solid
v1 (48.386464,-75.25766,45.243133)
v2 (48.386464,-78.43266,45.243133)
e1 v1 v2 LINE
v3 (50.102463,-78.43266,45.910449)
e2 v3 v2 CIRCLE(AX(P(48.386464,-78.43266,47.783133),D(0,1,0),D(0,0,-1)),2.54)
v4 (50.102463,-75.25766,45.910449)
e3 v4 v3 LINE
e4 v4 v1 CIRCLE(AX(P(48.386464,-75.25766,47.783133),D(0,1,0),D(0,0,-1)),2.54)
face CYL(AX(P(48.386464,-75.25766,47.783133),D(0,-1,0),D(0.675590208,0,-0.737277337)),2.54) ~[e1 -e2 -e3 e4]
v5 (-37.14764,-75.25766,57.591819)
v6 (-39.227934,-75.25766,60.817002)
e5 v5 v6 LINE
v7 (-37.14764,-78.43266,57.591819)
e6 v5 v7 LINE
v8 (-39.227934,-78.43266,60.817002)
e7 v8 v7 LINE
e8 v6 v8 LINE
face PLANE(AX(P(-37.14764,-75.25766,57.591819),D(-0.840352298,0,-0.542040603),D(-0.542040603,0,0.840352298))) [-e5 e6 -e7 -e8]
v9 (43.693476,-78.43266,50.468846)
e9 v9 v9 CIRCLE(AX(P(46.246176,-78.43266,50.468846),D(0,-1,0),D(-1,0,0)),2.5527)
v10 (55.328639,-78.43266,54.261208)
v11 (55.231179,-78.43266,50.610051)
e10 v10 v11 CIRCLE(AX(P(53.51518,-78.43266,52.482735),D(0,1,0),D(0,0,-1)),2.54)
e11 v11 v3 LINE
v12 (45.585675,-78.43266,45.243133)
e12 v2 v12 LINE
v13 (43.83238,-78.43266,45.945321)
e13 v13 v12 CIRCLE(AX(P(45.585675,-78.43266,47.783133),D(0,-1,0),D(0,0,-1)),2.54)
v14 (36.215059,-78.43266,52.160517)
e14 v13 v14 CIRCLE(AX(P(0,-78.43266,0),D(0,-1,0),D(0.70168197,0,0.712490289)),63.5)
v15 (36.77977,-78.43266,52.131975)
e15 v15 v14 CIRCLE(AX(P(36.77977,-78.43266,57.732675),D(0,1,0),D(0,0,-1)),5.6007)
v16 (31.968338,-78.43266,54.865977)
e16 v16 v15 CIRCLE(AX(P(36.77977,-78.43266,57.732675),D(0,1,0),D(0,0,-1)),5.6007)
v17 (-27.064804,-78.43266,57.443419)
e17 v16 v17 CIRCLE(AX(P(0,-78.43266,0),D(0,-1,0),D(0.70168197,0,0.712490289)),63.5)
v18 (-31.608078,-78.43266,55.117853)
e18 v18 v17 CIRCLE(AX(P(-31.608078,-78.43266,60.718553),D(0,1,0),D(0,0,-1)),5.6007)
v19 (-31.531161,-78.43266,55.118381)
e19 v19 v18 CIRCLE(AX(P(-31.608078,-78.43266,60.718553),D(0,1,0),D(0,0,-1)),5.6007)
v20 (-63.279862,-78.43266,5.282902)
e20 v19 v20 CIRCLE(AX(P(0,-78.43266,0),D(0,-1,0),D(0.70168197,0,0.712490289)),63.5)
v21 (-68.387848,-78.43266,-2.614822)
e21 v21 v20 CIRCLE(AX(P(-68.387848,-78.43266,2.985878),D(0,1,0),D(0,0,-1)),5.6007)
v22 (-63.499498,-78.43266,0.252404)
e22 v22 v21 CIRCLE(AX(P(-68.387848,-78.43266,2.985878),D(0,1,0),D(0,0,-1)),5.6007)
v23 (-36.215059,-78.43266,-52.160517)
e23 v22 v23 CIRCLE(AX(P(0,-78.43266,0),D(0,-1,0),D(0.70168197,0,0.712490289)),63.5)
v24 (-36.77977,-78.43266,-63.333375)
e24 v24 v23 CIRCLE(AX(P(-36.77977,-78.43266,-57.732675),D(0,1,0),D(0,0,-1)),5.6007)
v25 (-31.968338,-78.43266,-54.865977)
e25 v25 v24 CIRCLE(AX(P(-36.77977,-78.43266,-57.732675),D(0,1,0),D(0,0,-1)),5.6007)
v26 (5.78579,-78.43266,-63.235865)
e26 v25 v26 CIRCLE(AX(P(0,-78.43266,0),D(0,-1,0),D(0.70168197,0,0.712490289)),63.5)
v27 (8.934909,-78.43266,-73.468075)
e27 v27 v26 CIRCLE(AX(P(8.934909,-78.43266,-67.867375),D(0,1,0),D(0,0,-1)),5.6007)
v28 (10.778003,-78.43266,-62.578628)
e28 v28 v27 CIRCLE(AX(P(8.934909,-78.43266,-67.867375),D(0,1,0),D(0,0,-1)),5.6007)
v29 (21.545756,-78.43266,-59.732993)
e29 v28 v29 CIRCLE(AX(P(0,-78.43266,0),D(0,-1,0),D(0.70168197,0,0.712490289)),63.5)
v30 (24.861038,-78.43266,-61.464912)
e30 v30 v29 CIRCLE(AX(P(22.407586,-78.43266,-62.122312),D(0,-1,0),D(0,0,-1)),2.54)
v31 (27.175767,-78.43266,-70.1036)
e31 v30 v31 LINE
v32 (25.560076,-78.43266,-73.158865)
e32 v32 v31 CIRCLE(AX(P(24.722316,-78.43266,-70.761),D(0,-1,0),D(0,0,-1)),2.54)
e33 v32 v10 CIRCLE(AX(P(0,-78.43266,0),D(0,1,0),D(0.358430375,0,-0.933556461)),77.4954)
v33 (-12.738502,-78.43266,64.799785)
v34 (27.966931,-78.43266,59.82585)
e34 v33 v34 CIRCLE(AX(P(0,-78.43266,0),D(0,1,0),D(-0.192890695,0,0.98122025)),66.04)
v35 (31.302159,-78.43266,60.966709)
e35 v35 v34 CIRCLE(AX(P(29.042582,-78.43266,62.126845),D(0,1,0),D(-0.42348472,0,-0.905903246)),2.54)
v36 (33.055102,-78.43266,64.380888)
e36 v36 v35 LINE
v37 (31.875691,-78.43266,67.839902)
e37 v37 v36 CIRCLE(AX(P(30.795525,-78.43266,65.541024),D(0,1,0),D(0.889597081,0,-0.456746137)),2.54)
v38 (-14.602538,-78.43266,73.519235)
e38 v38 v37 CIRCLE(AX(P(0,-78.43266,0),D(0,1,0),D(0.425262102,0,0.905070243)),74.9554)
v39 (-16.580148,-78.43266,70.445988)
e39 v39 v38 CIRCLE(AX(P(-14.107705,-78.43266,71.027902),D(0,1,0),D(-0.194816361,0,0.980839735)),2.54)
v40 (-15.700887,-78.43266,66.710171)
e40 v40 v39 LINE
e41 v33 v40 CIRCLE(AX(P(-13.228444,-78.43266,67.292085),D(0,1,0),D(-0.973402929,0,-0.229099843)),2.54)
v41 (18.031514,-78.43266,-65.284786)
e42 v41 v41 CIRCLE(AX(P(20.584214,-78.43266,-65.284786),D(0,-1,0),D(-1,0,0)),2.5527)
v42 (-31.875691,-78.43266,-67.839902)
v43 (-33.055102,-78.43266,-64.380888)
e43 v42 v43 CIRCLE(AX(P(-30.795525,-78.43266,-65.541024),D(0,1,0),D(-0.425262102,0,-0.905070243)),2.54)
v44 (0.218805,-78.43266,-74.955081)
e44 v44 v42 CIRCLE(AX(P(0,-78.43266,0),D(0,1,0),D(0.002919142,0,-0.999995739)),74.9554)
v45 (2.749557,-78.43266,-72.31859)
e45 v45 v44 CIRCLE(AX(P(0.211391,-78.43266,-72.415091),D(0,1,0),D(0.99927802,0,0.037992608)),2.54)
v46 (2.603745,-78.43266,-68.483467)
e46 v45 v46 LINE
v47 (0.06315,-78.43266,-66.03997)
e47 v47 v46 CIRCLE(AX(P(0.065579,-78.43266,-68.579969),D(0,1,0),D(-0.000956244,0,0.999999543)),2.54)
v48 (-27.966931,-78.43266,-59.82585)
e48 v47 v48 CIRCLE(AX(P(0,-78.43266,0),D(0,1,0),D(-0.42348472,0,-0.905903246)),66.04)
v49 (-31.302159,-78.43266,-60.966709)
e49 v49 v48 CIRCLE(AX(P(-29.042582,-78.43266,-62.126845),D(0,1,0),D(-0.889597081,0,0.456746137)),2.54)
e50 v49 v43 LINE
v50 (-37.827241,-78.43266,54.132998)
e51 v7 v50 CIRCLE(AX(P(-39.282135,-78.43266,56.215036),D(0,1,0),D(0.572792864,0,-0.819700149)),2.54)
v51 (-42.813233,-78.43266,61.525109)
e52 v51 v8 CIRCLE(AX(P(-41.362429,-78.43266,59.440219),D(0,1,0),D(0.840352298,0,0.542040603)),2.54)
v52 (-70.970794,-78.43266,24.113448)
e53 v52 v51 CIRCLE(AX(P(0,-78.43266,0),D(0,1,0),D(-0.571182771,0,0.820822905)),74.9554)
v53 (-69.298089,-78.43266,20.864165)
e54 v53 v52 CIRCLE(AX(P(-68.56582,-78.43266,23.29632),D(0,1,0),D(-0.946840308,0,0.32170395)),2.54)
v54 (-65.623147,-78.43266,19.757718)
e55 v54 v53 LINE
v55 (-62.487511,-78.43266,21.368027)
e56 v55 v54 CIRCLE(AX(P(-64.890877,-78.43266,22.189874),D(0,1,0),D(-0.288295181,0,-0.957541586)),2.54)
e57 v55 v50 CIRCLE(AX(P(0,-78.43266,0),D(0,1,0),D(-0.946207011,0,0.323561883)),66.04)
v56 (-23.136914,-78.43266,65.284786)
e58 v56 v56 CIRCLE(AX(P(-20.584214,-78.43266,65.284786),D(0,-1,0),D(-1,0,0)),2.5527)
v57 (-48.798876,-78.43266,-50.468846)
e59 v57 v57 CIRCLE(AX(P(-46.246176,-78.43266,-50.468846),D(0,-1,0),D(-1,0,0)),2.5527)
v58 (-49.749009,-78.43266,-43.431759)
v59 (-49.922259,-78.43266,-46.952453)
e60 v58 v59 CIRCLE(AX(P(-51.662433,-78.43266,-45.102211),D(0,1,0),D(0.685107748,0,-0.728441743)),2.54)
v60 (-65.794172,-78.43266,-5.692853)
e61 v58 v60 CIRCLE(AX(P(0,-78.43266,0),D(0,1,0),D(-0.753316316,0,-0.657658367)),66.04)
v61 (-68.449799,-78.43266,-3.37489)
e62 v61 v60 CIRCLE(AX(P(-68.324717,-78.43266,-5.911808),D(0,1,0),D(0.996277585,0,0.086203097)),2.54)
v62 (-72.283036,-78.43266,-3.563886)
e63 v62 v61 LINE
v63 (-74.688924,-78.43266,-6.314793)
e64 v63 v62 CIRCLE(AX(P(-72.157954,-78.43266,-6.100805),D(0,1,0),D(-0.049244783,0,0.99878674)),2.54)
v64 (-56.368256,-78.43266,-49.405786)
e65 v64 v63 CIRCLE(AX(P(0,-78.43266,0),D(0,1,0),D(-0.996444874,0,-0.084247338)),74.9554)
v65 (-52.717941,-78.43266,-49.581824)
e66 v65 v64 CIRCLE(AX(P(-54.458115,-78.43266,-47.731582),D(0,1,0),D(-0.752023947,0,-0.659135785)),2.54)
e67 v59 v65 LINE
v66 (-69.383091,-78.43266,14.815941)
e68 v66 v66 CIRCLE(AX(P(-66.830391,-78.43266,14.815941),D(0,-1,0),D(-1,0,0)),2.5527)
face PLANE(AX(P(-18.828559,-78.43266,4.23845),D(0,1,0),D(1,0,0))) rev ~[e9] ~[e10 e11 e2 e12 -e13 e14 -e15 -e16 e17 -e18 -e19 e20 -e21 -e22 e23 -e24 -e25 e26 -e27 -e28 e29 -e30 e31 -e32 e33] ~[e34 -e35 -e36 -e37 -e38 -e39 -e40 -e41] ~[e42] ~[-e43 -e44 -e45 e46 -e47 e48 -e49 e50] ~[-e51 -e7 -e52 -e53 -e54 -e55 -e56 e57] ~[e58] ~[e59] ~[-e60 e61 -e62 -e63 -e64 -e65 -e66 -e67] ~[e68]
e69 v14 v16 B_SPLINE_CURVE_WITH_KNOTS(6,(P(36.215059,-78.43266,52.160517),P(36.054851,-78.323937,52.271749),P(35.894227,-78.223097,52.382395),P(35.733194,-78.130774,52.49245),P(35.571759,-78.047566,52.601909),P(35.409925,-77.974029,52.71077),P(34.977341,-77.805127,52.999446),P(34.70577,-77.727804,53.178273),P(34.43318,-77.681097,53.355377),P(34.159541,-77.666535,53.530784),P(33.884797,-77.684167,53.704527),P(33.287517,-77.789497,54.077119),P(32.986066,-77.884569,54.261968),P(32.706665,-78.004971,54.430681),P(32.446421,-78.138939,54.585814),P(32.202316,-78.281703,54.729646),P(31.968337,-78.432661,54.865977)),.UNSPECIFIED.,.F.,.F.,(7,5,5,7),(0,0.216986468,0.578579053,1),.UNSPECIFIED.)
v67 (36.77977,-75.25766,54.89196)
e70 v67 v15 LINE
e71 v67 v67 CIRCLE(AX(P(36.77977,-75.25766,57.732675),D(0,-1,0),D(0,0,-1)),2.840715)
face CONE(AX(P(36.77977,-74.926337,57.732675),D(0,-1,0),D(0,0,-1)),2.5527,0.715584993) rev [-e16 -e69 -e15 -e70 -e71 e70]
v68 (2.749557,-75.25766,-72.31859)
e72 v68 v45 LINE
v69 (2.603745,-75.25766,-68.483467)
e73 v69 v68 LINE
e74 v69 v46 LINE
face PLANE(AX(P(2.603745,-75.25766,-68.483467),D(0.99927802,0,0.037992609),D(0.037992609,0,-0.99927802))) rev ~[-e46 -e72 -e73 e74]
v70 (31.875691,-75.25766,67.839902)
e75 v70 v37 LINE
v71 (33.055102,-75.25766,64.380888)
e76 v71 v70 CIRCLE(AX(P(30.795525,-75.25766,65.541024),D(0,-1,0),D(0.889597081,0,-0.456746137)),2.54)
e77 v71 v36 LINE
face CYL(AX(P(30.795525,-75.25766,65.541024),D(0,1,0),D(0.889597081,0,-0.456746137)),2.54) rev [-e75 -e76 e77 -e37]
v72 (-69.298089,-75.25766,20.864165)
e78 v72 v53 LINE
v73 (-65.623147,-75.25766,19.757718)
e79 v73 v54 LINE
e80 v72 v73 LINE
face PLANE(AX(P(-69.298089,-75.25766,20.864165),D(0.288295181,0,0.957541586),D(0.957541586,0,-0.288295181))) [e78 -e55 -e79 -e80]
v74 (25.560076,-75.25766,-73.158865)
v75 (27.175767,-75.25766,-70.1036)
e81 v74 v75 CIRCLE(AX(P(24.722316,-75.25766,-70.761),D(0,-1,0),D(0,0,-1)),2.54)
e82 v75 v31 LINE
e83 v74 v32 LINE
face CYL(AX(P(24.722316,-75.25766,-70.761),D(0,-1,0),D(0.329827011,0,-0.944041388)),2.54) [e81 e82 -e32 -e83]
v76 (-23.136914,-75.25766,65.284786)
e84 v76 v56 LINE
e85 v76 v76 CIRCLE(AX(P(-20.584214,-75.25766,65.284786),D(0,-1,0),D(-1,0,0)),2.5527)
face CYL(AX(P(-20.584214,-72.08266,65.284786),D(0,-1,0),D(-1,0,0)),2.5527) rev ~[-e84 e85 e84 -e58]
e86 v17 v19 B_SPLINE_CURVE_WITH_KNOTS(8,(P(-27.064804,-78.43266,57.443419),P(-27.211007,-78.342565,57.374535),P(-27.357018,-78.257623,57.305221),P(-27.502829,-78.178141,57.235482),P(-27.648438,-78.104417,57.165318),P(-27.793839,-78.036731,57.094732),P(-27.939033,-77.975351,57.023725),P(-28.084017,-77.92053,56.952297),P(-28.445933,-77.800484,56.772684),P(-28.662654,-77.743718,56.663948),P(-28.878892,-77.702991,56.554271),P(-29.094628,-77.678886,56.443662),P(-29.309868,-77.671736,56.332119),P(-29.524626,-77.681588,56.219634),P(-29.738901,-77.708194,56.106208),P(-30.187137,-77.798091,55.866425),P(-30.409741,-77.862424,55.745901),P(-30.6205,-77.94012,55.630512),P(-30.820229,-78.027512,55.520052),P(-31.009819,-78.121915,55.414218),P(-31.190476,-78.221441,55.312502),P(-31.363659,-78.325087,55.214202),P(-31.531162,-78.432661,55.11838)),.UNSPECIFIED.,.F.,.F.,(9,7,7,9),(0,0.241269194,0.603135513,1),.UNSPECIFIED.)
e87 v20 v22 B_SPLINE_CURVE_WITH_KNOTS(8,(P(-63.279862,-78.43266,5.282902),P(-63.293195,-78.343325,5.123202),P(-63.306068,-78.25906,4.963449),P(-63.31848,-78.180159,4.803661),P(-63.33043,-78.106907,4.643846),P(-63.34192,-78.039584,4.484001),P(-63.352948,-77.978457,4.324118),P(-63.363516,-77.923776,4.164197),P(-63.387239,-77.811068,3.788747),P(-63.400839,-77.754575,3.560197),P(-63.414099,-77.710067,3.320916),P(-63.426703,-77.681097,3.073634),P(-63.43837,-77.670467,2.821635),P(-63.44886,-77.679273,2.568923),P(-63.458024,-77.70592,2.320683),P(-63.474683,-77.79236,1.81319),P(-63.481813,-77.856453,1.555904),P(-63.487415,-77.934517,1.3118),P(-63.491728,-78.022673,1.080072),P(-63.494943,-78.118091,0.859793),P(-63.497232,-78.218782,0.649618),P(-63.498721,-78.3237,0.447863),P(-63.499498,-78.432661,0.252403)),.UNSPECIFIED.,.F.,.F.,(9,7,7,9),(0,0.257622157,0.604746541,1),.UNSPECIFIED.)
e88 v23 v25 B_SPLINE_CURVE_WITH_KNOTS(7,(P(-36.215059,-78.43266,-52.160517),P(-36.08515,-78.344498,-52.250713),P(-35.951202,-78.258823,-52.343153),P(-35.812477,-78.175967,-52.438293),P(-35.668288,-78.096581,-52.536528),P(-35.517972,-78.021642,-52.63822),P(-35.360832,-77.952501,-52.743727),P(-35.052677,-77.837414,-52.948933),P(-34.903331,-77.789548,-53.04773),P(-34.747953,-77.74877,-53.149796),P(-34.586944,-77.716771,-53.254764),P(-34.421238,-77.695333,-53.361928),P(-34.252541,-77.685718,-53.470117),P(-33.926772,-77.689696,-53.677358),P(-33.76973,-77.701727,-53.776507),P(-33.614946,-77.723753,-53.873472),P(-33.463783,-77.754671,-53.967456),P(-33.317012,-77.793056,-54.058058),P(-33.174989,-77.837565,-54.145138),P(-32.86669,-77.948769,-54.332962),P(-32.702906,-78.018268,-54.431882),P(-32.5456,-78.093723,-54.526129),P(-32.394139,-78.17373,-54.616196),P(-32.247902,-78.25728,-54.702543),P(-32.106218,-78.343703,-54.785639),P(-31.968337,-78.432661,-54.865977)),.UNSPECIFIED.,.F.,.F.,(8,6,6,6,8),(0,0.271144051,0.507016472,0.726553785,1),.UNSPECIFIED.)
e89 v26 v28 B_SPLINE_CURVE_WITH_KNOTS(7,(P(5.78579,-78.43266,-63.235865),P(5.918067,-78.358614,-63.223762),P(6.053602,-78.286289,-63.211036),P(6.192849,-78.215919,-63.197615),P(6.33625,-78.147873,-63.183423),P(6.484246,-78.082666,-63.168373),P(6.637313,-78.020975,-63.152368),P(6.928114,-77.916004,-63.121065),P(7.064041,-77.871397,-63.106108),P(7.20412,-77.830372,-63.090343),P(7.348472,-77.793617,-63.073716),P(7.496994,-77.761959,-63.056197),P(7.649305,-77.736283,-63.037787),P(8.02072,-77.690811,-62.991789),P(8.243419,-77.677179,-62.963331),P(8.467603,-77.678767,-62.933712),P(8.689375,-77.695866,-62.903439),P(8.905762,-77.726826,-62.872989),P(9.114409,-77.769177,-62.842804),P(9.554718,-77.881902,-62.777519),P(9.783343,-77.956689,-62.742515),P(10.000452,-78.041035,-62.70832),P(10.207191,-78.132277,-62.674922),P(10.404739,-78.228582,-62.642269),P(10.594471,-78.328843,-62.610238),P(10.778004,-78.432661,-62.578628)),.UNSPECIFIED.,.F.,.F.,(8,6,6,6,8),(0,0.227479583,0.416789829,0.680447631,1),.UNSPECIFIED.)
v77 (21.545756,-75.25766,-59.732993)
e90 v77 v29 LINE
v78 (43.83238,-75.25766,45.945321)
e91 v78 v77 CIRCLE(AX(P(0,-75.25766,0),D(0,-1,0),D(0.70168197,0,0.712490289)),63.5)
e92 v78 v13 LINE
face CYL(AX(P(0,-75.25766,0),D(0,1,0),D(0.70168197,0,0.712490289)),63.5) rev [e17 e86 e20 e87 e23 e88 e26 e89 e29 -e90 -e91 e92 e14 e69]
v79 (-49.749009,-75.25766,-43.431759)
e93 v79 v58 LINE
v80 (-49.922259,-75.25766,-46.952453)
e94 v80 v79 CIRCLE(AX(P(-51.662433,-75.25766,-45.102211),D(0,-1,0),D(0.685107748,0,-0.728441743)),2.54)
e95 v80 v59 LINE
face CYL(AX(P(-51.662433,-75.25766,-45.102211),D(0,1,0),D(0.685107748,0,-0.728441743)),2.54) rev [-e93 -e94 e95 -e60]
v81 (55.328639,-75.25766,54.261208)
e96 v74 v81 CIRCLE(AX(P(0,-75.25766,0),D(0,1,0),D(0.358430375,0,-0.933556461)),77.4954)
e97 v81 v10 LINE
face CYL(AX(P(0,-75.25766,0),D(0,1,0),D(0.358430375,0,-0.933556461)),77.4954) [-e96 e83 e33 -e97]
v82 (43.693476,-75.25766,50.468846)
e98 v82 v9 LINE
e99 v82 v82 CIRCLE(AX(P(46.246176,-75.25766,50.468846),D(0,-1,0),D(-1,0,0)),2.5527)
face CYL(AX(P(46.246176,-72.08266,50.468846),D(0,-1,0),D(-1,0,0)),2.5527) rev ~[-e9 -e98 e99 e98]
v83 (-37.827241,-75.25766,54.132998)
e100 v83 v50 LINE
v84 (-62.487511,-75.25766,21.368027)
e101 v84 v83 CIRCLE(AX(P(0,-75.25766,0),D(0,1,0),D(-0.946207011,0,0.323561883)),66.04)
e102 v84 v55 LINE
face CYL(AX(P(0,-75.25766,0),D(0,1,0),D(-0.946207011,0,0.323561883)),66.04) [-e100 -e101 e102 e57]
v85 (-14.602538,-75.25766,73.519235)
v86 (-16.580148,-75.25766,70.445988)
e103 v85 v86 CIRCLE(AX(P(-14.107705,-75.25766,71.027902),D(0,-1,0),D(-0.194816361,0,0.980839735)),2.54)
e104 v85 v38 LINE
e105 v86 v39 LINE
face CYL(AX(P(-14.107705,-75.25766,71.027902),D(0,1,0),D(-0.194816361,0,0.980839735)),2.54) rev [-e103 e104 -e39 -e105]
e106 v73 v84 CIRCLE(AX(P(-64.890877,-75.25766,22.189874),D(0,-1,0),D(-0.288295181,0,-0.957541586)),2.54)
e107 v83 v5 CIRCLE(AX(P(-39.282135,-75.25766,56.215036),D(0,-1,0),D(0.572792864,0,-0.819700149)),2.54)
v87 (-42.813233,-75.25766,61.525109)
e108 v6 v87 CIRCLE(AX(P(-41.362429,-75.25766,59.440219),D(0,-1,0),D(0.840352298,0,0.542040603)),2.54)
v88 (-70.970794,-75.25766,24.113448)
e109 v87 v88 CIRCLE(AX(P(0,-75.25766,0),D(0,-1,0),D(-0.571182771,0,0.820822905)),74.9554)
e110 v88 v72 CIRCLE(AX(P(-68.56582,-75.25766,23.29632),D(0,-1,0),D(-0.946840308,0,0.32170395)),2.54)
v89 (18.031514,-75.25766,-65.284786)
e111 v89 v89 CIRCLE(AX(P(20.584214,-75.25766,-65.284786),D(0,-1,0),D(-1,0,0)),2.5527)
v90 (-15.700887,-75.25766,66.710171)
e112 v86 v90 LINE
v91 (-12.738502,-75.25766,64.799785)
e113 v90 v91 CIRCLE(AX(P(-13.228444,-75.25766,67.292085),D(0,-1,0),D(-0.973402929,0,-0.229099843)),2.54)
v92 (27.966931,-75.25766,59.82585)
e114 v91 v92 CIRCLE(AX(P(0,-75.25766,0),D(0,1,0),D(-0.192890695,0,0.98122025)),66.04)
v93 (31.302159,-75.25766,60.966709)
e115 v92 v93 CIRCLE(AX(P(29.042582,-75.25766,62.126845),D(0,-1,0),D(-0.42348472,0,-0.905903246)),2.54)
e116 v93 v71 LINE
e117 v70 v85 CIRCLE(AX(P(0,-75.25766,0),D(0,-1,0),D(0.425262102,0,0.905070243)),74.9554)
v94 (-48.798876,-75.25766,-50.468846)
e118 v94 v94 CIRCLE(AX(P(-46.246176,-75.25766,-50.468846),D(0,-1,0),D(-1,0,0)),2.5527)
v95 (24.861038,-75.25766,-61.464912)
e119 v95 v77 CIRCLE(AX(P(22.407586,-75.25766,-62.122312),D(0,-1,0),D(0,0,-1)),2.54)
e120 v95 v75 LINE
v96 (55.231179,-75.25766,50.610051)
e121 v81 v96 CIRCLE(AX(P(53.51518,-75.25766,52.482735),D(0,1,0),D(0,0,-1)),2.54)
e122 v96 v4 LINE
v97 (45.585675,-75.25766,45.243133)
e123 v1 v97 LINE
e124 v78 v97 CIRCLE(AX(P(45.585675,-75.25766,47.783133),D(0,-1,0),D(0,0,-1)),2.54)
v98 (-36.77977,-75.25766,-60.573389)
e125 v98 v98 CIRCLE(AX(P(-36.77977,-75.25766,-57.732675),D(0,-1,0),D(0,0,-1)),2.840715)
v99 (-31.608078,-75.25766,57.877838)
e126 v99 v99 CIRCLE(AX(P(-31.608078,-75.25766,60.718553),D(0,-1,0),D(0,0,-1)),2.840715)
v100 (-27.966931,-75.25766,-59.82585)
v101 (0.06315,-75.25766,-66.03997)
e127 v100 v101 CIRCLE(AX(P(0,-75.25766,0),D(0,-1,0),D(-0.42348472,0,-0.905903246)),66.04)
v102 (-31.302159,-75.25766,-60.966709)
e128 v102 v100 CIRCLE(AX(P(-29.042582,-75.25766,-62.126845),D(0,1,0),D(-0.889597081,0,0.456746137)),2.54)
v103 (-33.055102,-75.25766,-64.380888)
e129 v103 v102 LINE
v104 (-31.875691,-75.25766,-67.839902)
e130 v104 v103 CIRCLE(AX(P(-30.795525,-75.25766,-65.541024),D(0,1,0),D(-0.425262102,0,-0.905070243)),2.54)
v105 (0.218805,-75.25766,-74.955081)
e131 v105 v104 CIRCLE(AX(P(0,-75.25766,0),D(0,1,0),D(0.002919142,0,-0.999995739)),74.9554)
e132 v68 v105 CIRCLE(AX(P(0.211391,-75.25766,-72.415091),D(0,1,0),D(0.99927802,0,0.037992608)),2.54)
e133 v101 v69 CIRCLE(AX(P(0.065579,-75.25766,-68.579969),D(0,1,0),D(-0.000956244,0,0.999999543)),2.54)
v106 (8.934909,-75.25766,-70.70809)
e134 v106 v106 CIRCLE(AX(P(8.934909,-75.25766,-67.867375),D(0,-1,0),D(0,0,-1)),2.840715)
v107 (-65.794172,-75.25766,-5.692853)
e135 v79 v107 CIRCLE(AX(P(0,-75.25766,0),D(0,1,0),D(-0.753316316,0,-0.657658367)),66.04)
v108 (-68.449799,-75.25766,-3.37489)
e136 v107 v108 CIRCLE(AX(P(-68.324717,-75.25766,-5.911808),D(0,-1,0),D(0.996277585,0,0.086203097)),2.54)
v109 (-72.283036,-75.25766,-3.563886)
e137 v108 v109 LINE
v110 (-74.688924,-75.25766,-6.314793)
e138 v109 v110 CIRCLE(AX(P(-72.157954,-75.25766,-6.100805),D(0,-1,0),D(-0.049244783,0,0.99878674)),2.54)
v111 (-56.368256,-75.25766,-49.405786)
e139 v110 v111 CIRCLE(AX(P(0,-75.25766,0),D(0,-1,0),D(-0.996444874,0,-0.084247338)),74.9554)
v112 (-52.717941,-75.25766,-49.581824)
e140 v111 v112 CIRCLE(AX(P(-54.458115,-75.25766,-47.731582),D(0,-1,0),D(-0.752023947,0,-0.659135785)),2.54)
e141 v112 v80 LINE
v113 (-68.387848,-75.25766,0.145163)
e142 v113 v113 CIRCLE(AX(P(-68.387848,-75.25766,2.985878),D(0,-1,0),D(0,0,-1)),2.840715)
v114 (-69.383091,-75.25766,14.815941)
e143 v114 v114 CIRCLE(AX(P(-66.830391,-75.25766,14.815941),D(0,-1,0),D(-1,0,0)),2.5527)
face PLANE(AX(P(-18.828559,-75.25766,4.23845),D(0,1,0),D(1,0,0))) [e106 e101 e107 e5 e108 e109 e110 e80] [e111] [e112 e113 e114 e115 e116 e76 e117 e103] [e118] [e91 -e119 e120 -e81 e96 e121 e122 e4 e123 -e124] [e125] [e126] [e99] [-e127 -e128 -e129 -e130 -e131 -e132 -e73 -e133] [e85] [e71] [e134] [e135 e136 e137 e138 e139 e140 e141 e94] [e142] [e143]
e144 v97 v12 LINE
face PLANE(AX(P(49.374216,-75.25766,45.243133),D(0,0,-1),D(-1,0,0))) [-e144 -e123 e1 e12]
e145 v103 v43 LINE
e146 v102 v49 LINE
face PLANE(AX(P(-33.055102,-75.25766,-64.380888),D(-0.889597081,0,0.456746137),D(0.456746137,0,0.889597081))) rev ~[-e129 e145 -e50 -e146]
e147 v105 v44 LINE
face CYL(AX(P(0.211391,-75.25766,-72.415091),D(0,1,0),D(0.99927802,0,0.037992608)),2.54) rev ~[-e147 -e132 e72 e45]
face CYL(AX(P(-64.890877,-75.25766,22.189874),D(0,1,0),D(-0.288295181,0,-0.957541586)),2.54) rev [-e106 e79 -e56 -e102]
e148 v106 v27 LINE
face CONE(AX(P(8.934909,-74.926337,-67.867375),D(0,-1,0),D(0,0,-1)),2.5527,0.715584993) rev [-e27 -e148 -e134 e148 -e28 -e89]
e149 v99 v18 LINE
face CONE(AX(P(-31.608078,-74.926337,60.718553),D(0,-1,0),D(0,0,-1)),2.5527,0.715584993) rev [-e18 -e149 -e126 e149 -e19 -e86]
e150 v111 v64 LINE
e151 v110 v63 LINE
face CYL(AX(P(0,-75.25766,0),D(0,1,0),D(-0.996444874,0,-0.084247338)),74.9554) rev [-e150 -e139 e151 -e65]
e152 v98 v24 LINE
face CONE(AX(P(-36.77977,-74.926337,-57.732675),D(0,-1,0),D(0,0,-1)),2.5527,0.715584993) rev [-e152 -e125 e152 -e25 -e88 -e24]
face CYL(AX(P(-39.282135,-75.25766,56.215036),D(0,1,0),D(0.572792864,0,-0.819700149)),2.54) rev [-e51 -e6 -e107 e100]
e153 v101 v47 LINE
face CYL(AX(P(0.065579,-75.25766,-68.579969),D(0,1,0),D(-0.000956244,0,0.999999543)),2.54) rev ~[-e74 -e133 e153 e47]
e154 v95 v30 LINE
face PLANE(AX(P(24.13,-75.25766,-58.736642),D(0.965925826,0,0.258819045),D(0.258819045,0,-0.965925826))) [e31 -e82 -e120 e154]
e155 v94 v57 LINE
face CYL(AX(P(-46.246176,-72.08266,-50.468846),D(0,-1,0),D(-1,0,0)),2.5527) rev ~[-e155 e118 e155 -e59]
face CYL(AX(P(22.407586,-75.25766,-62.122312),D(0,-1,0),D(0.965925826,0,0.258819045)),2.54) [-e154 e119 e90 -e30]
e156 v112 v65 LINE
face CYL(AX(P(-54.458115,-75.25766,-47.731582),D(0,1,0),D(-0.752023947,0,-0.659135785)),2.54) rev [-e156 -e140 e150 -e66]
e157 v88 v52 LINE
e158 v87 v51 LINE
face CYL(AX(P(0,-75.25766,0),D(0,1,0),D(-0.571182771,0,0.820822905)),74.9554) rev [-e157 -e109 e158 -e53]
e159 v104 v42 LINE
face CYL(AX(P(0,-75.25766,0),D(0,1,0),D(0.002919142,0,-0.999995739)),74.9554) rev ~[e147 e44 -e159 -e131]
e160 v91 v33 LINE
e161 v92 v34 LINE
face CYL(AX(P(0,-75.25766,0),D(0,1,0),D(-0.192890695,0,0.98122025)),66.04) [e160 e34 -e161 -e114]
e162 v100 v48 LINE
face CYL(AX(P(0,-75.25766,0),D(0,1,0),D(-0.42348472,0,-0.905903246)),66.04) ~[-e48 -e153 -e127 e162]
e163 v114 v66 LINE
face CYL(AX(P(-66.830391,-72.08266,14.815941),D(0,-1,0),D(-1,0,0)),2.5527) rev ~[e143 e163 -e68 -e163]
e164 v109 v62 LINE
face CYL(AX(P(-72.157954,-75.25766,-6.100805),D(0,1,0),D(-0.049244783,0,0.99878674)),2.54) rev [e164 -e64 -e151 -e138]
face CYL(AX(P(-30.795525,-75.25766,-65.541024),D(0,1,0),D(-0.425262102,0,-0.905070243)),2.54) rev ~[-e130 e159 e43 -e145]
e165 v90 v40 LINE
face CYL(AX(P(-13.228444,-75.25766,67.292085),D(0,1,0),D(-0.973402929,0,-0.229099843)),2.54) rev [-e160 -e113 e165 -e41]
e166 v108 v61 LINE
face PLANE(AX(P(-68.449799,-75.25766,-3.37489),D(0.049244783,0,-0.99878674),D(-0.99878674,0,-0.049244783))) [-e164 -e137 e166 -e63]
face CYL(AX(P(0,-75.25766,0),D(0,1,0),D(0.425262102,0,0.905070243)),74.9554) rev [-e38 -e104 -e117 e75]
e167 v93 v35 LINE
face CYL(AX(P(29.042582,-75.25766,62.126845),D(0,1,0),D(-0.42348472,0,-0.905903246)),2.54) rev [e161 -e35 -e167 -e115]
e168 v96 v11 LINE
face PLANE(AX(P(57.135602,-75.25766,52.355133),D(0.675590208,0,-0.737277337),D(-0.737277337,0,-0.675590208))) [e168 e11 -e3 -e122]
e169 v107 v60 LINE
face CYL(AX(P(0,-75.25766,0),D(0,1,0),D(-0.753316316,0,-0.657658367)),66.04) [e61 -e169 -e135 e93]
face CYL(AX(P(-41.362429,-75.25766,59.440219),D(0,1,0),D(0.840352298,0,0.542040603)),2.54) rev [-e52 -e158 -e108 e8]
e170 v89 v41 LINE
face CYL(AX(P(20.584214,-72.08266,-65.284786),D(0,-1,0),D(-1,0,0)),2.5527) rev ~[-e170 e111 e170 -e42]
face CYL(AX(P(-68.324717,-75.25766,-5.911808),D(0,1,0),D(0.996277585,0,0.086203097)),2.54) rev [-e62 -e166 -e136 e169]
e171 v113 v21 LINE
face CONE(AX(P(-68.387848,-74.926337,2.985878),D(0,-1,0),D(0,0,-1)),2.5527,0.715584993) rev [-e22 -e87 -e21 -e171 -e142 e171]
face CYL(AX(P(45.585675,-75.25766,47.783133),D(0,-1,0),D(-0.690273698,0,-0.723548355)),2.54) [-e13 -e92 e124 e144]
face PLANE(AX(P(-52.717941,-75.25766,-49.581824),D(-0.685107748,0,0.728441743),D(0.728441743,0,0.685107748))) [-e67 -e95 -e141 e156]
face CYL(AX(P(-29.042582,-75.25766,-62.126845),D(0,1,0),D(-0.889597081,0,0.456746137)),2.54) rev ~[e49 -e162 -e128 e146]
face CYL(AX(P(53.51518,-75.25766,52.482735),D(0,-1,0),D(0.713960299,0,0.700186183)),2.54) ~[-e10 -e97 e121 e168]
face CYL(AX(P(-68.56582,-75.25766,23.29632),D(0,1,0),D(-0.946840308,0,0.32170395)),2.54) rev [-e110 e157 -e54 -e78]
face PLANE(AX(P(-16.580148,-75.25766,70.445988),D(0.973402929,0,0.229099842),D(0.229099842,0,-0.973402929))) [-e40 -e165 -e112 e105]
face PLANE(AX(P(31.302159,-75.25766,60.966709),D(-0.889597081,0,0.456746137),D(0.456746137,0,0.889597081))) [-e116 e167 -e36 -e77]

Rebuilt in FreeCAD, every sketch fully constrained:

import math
import FreeCAD as App
import Part
import Sketcher
from FreeCAD import Vector
Q = App.Units.Quantity


def edges_at(feature, points):
    """Names of the edges that pass closest to the given points."""
    edges = feature.Shape.Edges
    near = lambda p: min(range(len(edges)), key=lambda i: edges[i].distToShape(Part.Vertex(*p))[0])
    return sorted({f"Edge{near(p) + 1}" for p in points})

doc = App.newDocument("Part")
params = doc.addObject("Spreadsheet::Sheet", "Params")
for row, (alias, value) in enumerate([
    ("sketch1_radius", "2.5 in"),
    ("sketch1_radius2", "3.051 in"),
    ("pad1_length", "0.125 in"),
    ("sketch2_diameter", "0.201 in"),
    ("hole_diameter", "0.201 in"),
    ("hole_depth", "0.125 in"),
    ("sketch3_width", "0.125 in"),
    ("groove_angle", "360 deg"),
    ("linearpattern_pitch", "46.82461 mm"),
    ("linearpattern2_pitch", "104.876081 mm"),
    ("linearpattern3_pitch", "134.82609 mm"),
    ("linearpattern4_pitch", "128.649558 mm"),
    ("fillet_radius", "0.1 in"),
    ("sketch4_radius", "0.1 in"),
    ("sketch4_radius2", "2.6 in"),
    ("sketch4_radius3", "2.951 in"),
    ("sketch5_radius", "0.1 in"),
    ("sketch5_radius2", "2.6 in"),
    ("sketch5_radius3", "2.951 in"),
    ("sketch6_radius", "0.1 in"),
    ("sketch6_radius2", "2.6 in"),
    ("sketch6_radius3", "2.951 in"),
    ("sketch7_radius", "0.1 in"),
    ("sketch7_radius2", "2.6 in"),
    ("sketch7_radius3", "2.951 in"),
], start=1):
    params.set(f"A{row}", alias)
    params.set(f"B{row}", "=" + value)
    params.setAlias(f"B{row}", alias)

body = doc.addObject("PartDesign::Body", "Body")

# Sketch on XZ plane
sketch1 = body.newObject("Sketcher::SketchObject", "Sketch")
sketch1.AttachmentSupport = (doc.getObject("XZ_Plane"), [""])
sketch1.MapMode = "FlatFace"
sketch1.AttachmentOffset = App.Placement(Vector(0, 0, 2.9629 * 25.4), App.Rotation())
sketch1.addGeometry(Part.ArcOfCircle(Part.Circle(Vector(0, 0, 0), Vector(0, 0, 1), 77.4954), math.radians(42.5), math.radians(291.003831)), False)
sketch1.addGeometry(Part.LineSegment(Vector(57.135602, 52.355133, 0), Vector(49.374216, 45.243133, 0)), False)
sketch1.addGeometry(Part.LineSegment(Vector(49.374216, 45.243133, 0), Vector(44.556805, 45.243133, 0)), False)
sketch1.addGeometry(Part.ArcOfCircle(Part.Circle(Vector(0, 0, 0), Vector(0, 0, 1), 63.5), math.radians(45.437895), math.radians(292.333683)), False)
sketch1.addGeometry(Part.LineSegment(Vector(24.13, -58.736642, 0), Vector(27.776705, -72.346331, 0)), False)
sketch1.addConstraint(Sketcher.Constraint("Coincident", 0, 1, 1, 1))
sketch1.addConstraint(Sketcher.Constraint("Coincident", 1, 2, 2, 1))
sketch1.addConstraint(Sketcher.Constraint("Coincident", 2, 2, 3, 1))
sketch1.addConstraint(Sketcher.Constraint("Coincident", 3, 2, 4, 1))
sketch1.addConstraint(Sketcher.Constraint("Coincident", 4, 2, 0, 2))
sketch1.addConstraint(Sketcher.Constraint("Horizontal", 2))
sketch1.addConstraint(Sketcher.Constraint("Coincident", 0, 3, -1, 1))
sketch1.addConstraint(Sketcher.Constraint("Coincident", 3, 3, -1, 1))
sketch1.addConstraint(Sketcher.Constraint("Radius", 3, Q("2.5 in")))
sketch1.addConstraint(Sketcher.Constraint("Angle", 4, Q("-75 deg")))
sketch1.addConstraint(Sketcher.Constraint("Radius", 0, Q("3.051 in")))
sketch1.addConstraint(Sketcher.Constraint("Angle", 1, Q("-137.5 deg")))
sketch1.addConstraint(Sketcher.Constraint("DistanceX", -1, 1, 3, 2, Q("0.95 in")))
sketch1.addConstraint(Sketcher.Constraint("DistanceY", 1, 2, 0, 1, Q("0.28 in")))
sketch1.addConstraint(Sketcher.Constraint("DistanceX", 2, 2, 2, 1, Q("4.817411 mm")))
sketch1.setExpression("Constraints[8]", "Params.sketch1_radius")
sketch1.setExpression("Constraints[10]", "Params.sketch1_radius2")
pad1 = body.newObject("PartDesign::Pad", "Pad")
pad1.Profile = sketch1
pad1.setExpression("Length", "Params.pad1_length")

# Sketch on XZ plane
sketch2 = body.newObject("Sketcher::SketchObject", "Sketch001")
sketch2.AttachmentSupport = (doc.getObject("XZ_Plane"), [""])
sketch2.MapMode = "FlatFace"
sketch2.AttachmentOffset = App.Placement(Vector(0, 0, 2.9629 * 25.4), App.Rotation())
sketch2.addGeometry(Part.Circle(Vector(-46.246176, -50.468846, 0), Vector(0, 0, 1), 2.5527), False)
sketch2.addGeometry(Part.Circle(Vector(20.584214, -65.284786, 0), Vector(0, 0, 1), 2.5527), False)
sketch2.addGeometry(Part.Circle(Vector(-66.830391, 14.815941, 0), Vector(0, 0, 1), 2.5527), False)
sketch2.addGeometry(Part.Circle(Vector(-20.584214, 65.284786, 0), Vector(0, 0, 1), 2.5527), False)
sketch2.addGeometry(Part.Circle(Vector(46.246176, 50.468846, 0), Vector(0, 0, 1), 2.5527), False)
sketch2.addConstraint(Sketcher.Constraint("Equal", 0, 1))
sketch2.addConstraint(Sketcher.Constraint("Equal", 1, 2))
sketch2.addConstraint(Sketcher.Constraint("Equal", 2, 3))
sketch2.addConstraint(Sketcher.Constraint("Equal", 3, 4))
sketch2.addConstraint(Sketcher.Constraint("Symmetric", 1, 3, 3, 3, -1, 1))
sketch2.addConstraint(Sketcher.Constraint("Symmetric", 0, 3, 4, 3, -1, 1))
sketch2.addConstraint(Sketcher.Constraint("Diameter", 0, Q("0.201 in")))
sketch2.addConstraint(Sketcher.Constraint("DistanceX", 2, 3, -1, 1, Q("66.830391 mm")))
sketch2.addConstraint(Sketcher.Constraint("DistanceY", -1, 1, 2, 3, Q("14.815941 mm")))
sketch2.addConstraint(Sketcher.Constraint("DistanceX", 0, 3, 1, 3, Q("66.830391 mm")))
sketch2.addConstraint(Sketcher.Constraint("DistanceY", 1, 3, 0, 3, Q("14.815941 mm")))
sketch2.addConstraint(Sketcher.Constraint("DistanceY", 0, 3, 3, 3, Q("115.753632 mm")))
sketch2.addConstraint(Sketcher.Constraint("DistanceX", 3, 3, 1, 3, Q("41.168428 mm")))
sketch2.setExpression("Constraints[6]", "Params.sketch2_diameter")
doc.recompute()
hole = body.newObject("PartDesign::Hole", "Hole")
hole.Profile = sketch2
hole.ThreadType = "None"
hole.setExpression("Diameter", "Params.hole_diameter")
hole.DepthType = "Dimension"
hole.setExpression("Depth", "Params.hole_depth")
hole.DrillPoint = "Flat"
hole.Reversed = True

# Sketch on YZ plane
sketch3 = body.newObject("Sketcher::SketchObject", "Sketch002")
sketch3.AttachmentSupport = (doc.getObject("YZ_Plane"), [""])
sketch3.MapMode = "FlatFace"
sketch3.AttachmentOffset = App.Placement(Vector(0, 0, 8.934909), App.Rotation())
sketch3.addGeometry(Part.LineSegment(Vector(-75.25766, -67.867375, 0), Vector(-78.43266, -67.867375, 0)), False)
sketch3.addGeometry(Part.LineSegment(Vector(-78.43266, -67.867375, 0), Vector(-78.43266, -73.468075, 0)), False)
sketch3.addGeometry(Part.LineSegment(Vector(-78.43266, -73.468075, 0), Vector(-74.926337, -70.420075, 0)), False)
sketch3.addGeometry(Part.LineSegment(Vector(-74.926337, -70.420075, 0), Vector(-75.25766, -70.420075, 0)), False)
sketch3.addGeometry(Part.LineSegment(Vector(-75.25766, -70.420075, 0), Vector(-75.25766, -67.867375, 0)), False)
sketch3.addGeometry(Part.LineSegment(Vector(-78.43266, -67.867375, 0), Vector(-74.926337, -67.867375, 0)), True)  # axis
sketch3.addConstraint(Sketcher.Constraint("Coincident", 0, 2, 1, 1))
sketch3.addConstraint(Sketcher.Constraint("Coincident", 1, 2, 2, 1))
sketch3.addConstraint(Sketcher.Constraint("Coincident", 2, 2, 3, 1))
sketch3.addConstraint(Sketcher.Constraint("Coincident", 3, 2, 4, 1))
sketch3.addConstraint(Sketcher.Constraint("Coincident", 4, 2, 0, 1))
sketch3.addConstraint(Sketcher.Constraint("Horizontal", 0))
sketch3.addConstraint(Sketcher.Constraint("Vertical", 1))
sketch3.addConstraint(Sketcher.Constraint("Horizontal", 3))
sketch3.addConstraint(Sketcher.Constraint("Vertical", 4))
sketch3.addConstraint(Sketcher.Constraint("Horizontal", 5))
sketch3.addConstraint(Sketcher.Constraint("Coincident", 5, 1, 0, 2))
sketch3.addConstraint(Sketcher.Constraint("Vertical", 2, 2, 5, 2))
sketch3.addConstraint(Sketcher.Constraint("Angle", 2, Q("41 deg")))
sketch3.addConstraint(Sketcher.Constraint("DistanceX", 0, 2, 0, 1, Q("0.125 in")))
sketch3.addConstraint(Sketcher.Constraint("DistanceY", 1, 2, 2, 2, Q("0.12 in")))
sketch3.addConstraint(Sketcher.Constraint("DistanceY", 1, 2, 1, 1, Q("0.2205 in")))
sketch3.addConstraint(Sketcher.Constraint("DistanceX", 0, 2, -1, 1, Q("3.0879 in")))
sketch3.addConstraint(Sketcher.Constraint("DistanceY", 0, 2, -1, 1, Q("67.867375 mm")))
sketch3.setExpression("Constraints[13]", "Params.sketch3_width")
groove = body.newObject("PartDesign::Groove", "Groove")
groove.Profile = sketch3
groove.ReferenceAxis = (sketch3, ["Axis0"])
groove.setExpression("Angle", "Params.groove_angle")
doc.recompute()

datumline = body.newObject("PartDesign::Line", "DatumLine")
datumline.Placement = App.Placement(Vector(0, 0, 0), App.Rotation(Vector(0, 0, 1), Vector(-0.976296007, 0, 0.216439614)))
linearpattern = body.newObject("PartDesign::LinearPattern", "LinearPattern")
linearpattern.Originals = [groove]
linearpattern.Direction = (datumline, [""])
linearpattern.Mode = "offset"
linearpattern.setExpression("Offset", "Params.linearpattern_pitch")
linearpattern.Occurrences = 2
body.Tip = linearpattern
doc.recompute()

datumline2 = body.newObject("PartDesign::Line", "DatumLine001")
datumline2.Placement = App.Placement(Vector(0, 0, 0), App.Rotation(Vector(0, 0, 1), Vector(-0.737277337, 0, 0.675590208)))
linearpattern2 = body.newObject("PartDesign::LinearPattern", "LinearPattern001")
linearpattern2.Originals = [groove]
linearpattern2.Direction = (datumline2, [""])
linearpattern2.Mode = "offset"
linearpattern2.setExpression("Offset", "Params.linearpattern2_pitch")
linearpattern2.Occurrences = 2
body.Tip = linearpattern2
doc.recompute()

datumline3 = body.newObject("PartDesign::Line", "DatumLine002")
datumline3.Placement = App.Placement(Vector(0, 0, 0), App.Rotation(Vector(0, 0, 1), Vector(-0.3007058, 0, 0.953716951)))
linearpattern3 = body.newObject("PartDesign::LinearPattern", "LinearPattern002")
linearpattern3.Originals = [groove]
linearpattern3.Direction = (datumline3, [""])
linearpattern3.Mode = "offset"
linearpattern3.setExpression("Offset", "Params.linearpattern3_pitch")
linearpattern3.Occurrences = 2
body.Tip = linearpattern3
doc.recompute()

datumline4 = body.newObject("PartDesign::Line", "DatumLine003")
datumline4.Placement = App.Placement(Vector(0, 0, 0), App.Rotation(Vector(0, 0, 1), Vector(0.216439614, 0, 0.976296007)))
linearpattern4 = body.newObject("PartDesign::LinearPattern", "LinearPattern003")
linearpattern4.Originals = [groove]
linearpattern4.Direction = (datumline4, [""])
linearpattern4.Mode = "offset"
linearpattern4.setExpression("Offset", "Params.linearpattern4_pitch")
linearpattern4.Occurrences = 2
body.Tip = linearpattern4
doc.recompute()

fillet = body.newObject("PartDesign::Fillet", "Fillet")
fillet.Base = (linearpattern4, edges_at(linearpattern4, [
    (24.13, -76.845, -58.737),
    (27.777, -76.845, -72.346),
    (57.136, -76.845, 52.355),
    (49.374, -76.845, 45.243),
    (44.557, -76.845, 45.243),
]))
fillet.setExpression("Radius", "Params.fillet_radius")

# Sketch on XZ plane
sketch4 = body.newObject("Sketcher::SketchObject", "Sketch003")
sketch4.AttachmentSupport = (doc.getObject("XZ_Plane"), [""])
sketch4.MapMode = "FlatFace"
sketch4.AttachmentOffset = App.Placement(Vector(0, 0, 2.9629 * 25.4), App.Rotation())
sketch4.addGeometry(Part.LineSegment(Vector(-33.055102, -64.380888, 0), Vector(-31.302159, -60.966709, 0)), False)
sketch4.addGeometry(Part.ArcOfCircle(Part.Circle(Vector(-29.042582, -62.126845, 0), Vector(0, 0, 1), 2.54), math.radians(64.945211), math.radians(152.82266)), False)
sketch4.addGeometry(Part.ArcOfCircle(Part.Circle(Vector(0, 0, 0), Vector(0, 0, 1), 66.04), math.radians(-115.054789), math.radians(-89.945211)), False)
sketch4.addGeometry(Part.ArcOfCircle(Part.Circle(Vector(0.065579, -68.579969, 0), Vector(0, 0, 1), 2.54), math.radians(2.17734), math.radians(90.054789)), False)
sketch4.addGeometry(Part.LineSegment(Vector(2.603745, -68.483467, 0), Vector(2.749557, -72.31859, 0)), False)
sketch4.addGeometry(Part.ArcOfCircle(Part.Circle(Vector(0.211391, -72.415091, 0), Vector(0, 0, 1), 2.54), math.radians(-89.832745), math.radians(2.17734)), False)
sketch4.addGeometry(Part.ArcOfCircle(Part.Circle(Vector(0, 0, 0), Vector(0, 0, 1), 74.9554), math.radians(-115.167255), math.radians(-89.832745)), False)
sketch4.addGeometry(Part.ArcOfCircle(Part.Circle(Vector(-30.795525, -65.541024, 0), Vector(0, 0, 1), 2.54), math.radians(152.82266), math.radians(244.832745)), False)
sketch4.addConstraint(Sketcher.Constraint("Tangent", 0, 2, 1, 2))
sketch4.addConstraint(Sketcher.Constraint("Tangent", 1, 1, 2, 1))
sketch4.addConstraint(Sketcher.Constraint("Tangent", 2, 2, 3, 2))
sketch4.addConstraint(Sketcher.Constraint("Tangent", 3, 1, 4, 1))
sketch4.addConstraint(Sketcher.Constraint("Tangent", 4, 2, 5, 2))
sketch4.addConstraint(Sketcher.Constraint("Tangent", 5, 1, 6, 2))
sketch4.addConstraint(Sketcher.Constraint("Tangent", 6, 1, 7, 2))
sketch4.addConstraint(Sketcher.Constraint("Tangent", 7, 1, 0, 1))
sketch4.addConstraint(Sketcher.Constraint("Coincident", 2, 3, -1, 1))
sketch4.addConstraint(Sketcher.Constraint("Coincident", 6, 3, -1, 1))
sketch4.addConstraint(Sketcher.Constraint("Equal", 1, 3))
sketch4.addConstraint(Sketcher.Constraint("Equal", 3, 5))
sketch4.addConstraint(Sketcher.Constraint("Equal", 5, 7))
sketch4.addConstraint(Sketcher.Constraint("Equal", 0, 4))
sketch4.addConstraint(Sketcher.Constraint("Radius", 1, Q("0.1 in")))
sketch4.addConstraint(Sketcher.Constraint("Radius", 2, Q("2.6 in")))
sketch4.addConstraint(Sketcher.Constraint("Radius", 6, Q("2.951 in")))
sketch4.addConstraint(Sketcher.Constraint("DistanceX", 7, 1, -1, 1, Q("33.055102 mm")))
sketch4.addConstraint(Sketcher.Constraint("DistanceY", 3, 3, 3, 1, Q("0.096501 mm")))
sketch4.addConstraint(Sketcher.Constraint("DistanceX", -1, 1, 3, 3, Q("0.065579 mm")))
sketch4.setExpression("Constraints[14]", "Params.sketch4_radius")
sketch4.setExpression("Constraints[15]", "Params.sketch4_radius2")
sketch4.setExpression("Constraints[16]", "Params.sketch4_radius3")
pocket1 = body.newObject("PartDesign::Pocket", "Pocket")
pocket1.Profile = sketch4
pocket1.Type = "UpToFirst"
pocket1.Reversed = True

# Sketch on XZ plane
sketch5 = body.newObject("Sketcher::SketchObject", "Sketch004")
sketch5.AttachmentSupport = (doc.getObject("XZ_Plane"), [""])
sketch5.MapMode = "FlatFace"
sketch5.AttachmentOffset = App.Placement(Vector(0, 0, 2.9629 * 25.4), App.Rotation())
sketch5.addGeometry(Part.LineSegment(Vector(-49.922259, -46.952453, 0), Vector(-52.717941, -49.581824, 0)), False)
sketch5.addGeometry(Part.ArcOfCircle(Part.Circle(Vector(-54.458115, -47.731582, 0), Vector(0, 0, 1), 2.54), math.radians(-138.766004), math.radians(-46.755919)), False)
sketch5.addGeometry(Part.ArcOfCircle(Part.Circle(Vector(0, 0, 0), Vector(0, 0, 1), 74.9554), math.radians(-175.167255), math.radians(-138.766004)), False)
sketch5.addGeometry(Part.ArcOfCircle(Part.Circle(Vector(-72.157954, -6.100805, 0), Vector(0, 0, 1), 2.54), math.radians(92.82266), math.radians(184.832745)), False)
sketch5.addGeometry(Part.LineSegment(Vector(-72.283036, -3.563886, 0), Vector(-68.449799, -3.37489, 0)), False)
sketch5.addGeometry(Part.ArcOfCircle(Part.Circle(Vector(-68.324717, -5.911808, 0), Vector(0, 0, 1), 2.54), math.radians(4.945211), math.radians(92.82266)), False)
sketch5.addGeometry(Part.ArcOfCircle(Part.Circle(Vector(0, 0, 0), Vector(0, 0, 1), 66.04), math.radians(-175.054789), math.radians(-138.87847)), False)
sketch5.addGeometry(Part.ArcOfCircle(Part.Circle(Vector(-51.662433, -45.102211, 0), Vector(0, 0, 1), 2.54), math.radians(-46.755918), math.radians(41.12153)), False)
sketch5.addConstraint(Sketcher.Constraint("Tangent", 0, 2, 1, 2))
sketch5.addConstraint(Sketcher.Constraint("Tangent", 1, 1, 2, 2))
sketch5.addConstraint(Sketcher.Constraint("Tangent", 2, 1, 3, 2))
sketch5.addConstraint(Sketcher.Constraint("Tangent", 3, 1, 4, 1))
sketch5.addConstraint(Sketcher.Constraint("Tangent", 4, 2, 5, 2))
sketch5.addConstraint(Sketcher.Constraint("Tangent", 5, 1, 6, 1))
sketch5.addConstraint(Sketcher.Constraint("Tangent", 6, 2, 7, 2))
sketch5.addConstraint(Sketcher.Constraint("Tangent", 7, 1, 0, 1))
sketch5.addConstraint(Sketcher.Constraint("Coincident", 2, 3, -1, 1))
sketch5.addConstraint(Sketcher.Constraint("Coincident", 6, 3, -1, 1))
sketch5.addConstraint(Sketcher.Constraint("Equal", 1, 3))
sketch5.addConstraint(Sketcher.Constraint("Equal", 3, 5))
sketch5.addConstraint(Sketcher.Constraint("Equal", 5, 7))
sketch5.addConstraint(Sketcher.Constraint("Equal", 0, 4))
sketch5.addConstraint(Sketcher.Constraint("Radius", 1, Q("0.1 in")))
sketch5.addConstraint(Sketcher.Constraint("Radius", 6, Q("2.6 in")))
sketch5.addConstraint(Sketcher.Constraint("Radius", 2, Q("2.951 in")))
sketch5.addConstraint(Sketcher.Constraint("DistanceX", 4, 2, -1, 1, Q("68.449799 mm")))
sketch5.addConstraint(Sketcher.Constraint("DistanceX", 5, 3, 1, 3, Q("13.866602 mm")))
sketch5.addConstraint(Sketcher.Constraint("DistanceY", 1, 3, -1, 1, Q("47.731582 mm")))
sketch5.setExpression("Constraints[14]", "Params.sketch5_radius")
sketch5.setExpression("Constraints[15]", "Params.sketch5_radius2")
sketch5.setExpression("Constraints[16]", "Params.sketch5_radius3")
pocket2 = body.newObject("PartDesign::Pocket", "Pocket001")
pocket2.Profile = sketch5
pocket2.Type = "UpToFirst"
pocket2.Reversed = True

# Sketch on XZ plane
sketch6 = body.newObject("Sketcher::SketchObject", "Sketch005")
sketch6.AttachmentSupport = (doc.getObject("XZ_Plane"), [""])
sketch6.MapMode = "FlatFace"
sketch6.AttachmentOffset = App.Placement(Vector(0, 0, 2.9629 * 25.4), App.Rotation())
sketch6.addGeometry(Part.LineSegment(Vector(-65.623147, 19.757718, 0), Vector(-69.298089, 20.864165, 0)), False)
sketch6.addGeometry(Part.ArcOfCircle(Part.Circle(Vector(-68.56582, 23.29632, 0), Vector(0, 0, 1), 2.54), math.radians(161.233996), math.radians(253.244082)), False)
sketch6.addGeometry(Part.ArcOfCircle(Part.Circle(Vector(0, 0, 0), Vector(0, 0, 1), 74.9554), math.radians(124.832745), math.radians(161.233996)), False)
sketch6.addGeometry(Part.ArcOfCircle(Part.Circle(Vector(-41.362429, 59.440219, 0), Vector(0, 0, 1), 2.54), math.radians(32.82266), math.radians(124.832745)), False)
sketch6.addGeometry(Part.LineSegment(Vector(-39.227934, 60.817002, 0), Vector(-37.14764, 57.591819, 0)), False)
sketch6.addGeometry(Part.ArcOfCircle(Part.Circle(Vector(-39.282135, 56.215036, 0), Vector(0, 0, 1), 2.54), math.radians(-55.054789), math.radians(32.82266)), False)
sketch6.addGeometry(Part.ArcOfCircle(Part.Circle(Vector(0, 0, 0), Vector(0, 0, 1), 66.04), math.radians(124.945211), math.radians(161.12153)), False)
sketch6.addGeometry(Part.ArcOfCircle(Part.Circle(Vector(-64.890877, 22.189874, 0), Vector(0, 0, 1), 2.54), math.radians(-106.755918), math.radians(-18.87847)), False)
sketch6.addConstraint(Sketcher.Constraint("Tangent", 0, 2, 1, 2))
sketch6.addConstraint(Sketcher.Constraint("Tangent", 1, 1, 2, 2))
sketch6.addConstraint(Sketcher.Constraint("Tangent", 2, 1, 3, 2))
sketch6.addConstraint(Sketcher.Constraint("Tangent", 3, 1, 4, 1))
sketch6.addConstraint(Sketcher.Constraint("Tangent", 4, 2, 5, 2))
sketch6.addConstraint(Sketcher.Constraint("Tangent", 5, 1, 6, 1))
sketch6.addConstraint(Sketcher.Constraint("Tangent", 6, 2, 7, 2))
sketch6.addConstraint(Sketcher.Constraint("Tangent", 7, 1, 0, 1))
sketch6.addConstraint(Sketcher.Constraint("Coincident", 2, 3, -1, 1))
sketch6.addConstraint(Sketcher.Constraint("Coincident", 6, 3, -1, 1))
sketch6.addConstraint(Sketcher.Constraint("Equal", 1, 3))
sketch6.addConstraint(Sketcher.Constraint("Equal", 3, 5))
sketch6.addConstraint(Sketcher.Constraint("Equal", 5, 7))
sketch6.addConstraint(Sketcher.Constraint("Equal", 0, 4))
sketch6.addConstraint(Sketcher.Constraint("Radius", 1, Q("0.1 in")))
sketch6.addConstraint(Sketcher.Constraint("Radius", 6, Q("2.6 in")))
sketch6.addConstraint(Sketcher.Constraint("Radius", 2, Q("2.951 in")))
sketch6.addConstraint(Sketcher.Constraint("DistanceY", 1, 1, 2, 1, Q("1.4729 in")))
sketch6.addConstraint(Sketcher.Constraint("DistanceX", 2, 1, 5, 3, Q("3.531098 mm")))
sketch6.addConstraint(Sketcher.Constraint("DistanceX", 5, 3, 3, 1, Q("0.054201 mm")))
sketch6.setExpression("Constraints[14]", "Params.sketch6_radius")
sketch6.setExpression("Constraints[15]", "Params.sketch6_radius2")
sketch6.setExpression("Constraints[16]", "Params.sketch6_radius3")
pocket3 = body.newObject("PartDesign::Pocket", "Pocket002")
pocket3.Profile = sketch6
pocket3.Type = "UpToFirst"
pocket3.Reversed = True

# Sketch on XZ plane
sketch7 = body.newObject("Sketcher::SketchObject", "Sketch006")
sketch7.AttachmentSupport = (doc.getObject("XZ_Plane"), [""])
sketch7.MapMode = "FlatFace"
sketch7.AttachmentOffset = App.Placement(Vector(0, 0, 2.9629 * 25.4), App.Rotation())
sketch7.addGeometry(Part.LineSegment(Vector(-15.700887, 66.710171, 0), Vector(-16.580148, 70.445988, 0)), False)
sketch7.addGeometry(Part.ArcOfCircle(Part.Circle(Vector(-14.107705, 71.027902, 0), Vector(0, 0, 1), 2.54), math.radians(101.233996), math.radians(193.244082)), False)
sketch7.addGeometry(Part.ArcOfCircle(Part.Circle(Vector(0, 0, 0), Vector(0, 0, 1), 74.9554), math.radians(64.832745), math.radians(101.233996)), False)
sketch7.addGeometry(Part.ArcOfCircle(Part.Circle(Vector(30.795525, 65.541024, 0), Vector(0, 0, 1), 2.54), math.radians(-27.17734), math.radians(64.832745)), False)
sketch7.addGeometry(Part.LineSegment(Vector(33.055102, 64.380888, 0), Vector(31.302159, 60.966709, 0)), False)
sketch7.addGeometry(Part.ArcOfCircle(Part.Circle(Vector(29.042582, 62.126845, 0), Vector(0, 0, 1), 2.54), math.radians(-115.054789), math.radians(-27.17734)), False)
sketch7.addGeometry(Part.ArcOfCircle(Part.Circle(Vector(0, 0, 0), Vector(0, 0, 1), 66.04), math.radians(64.945211), math.radians(101.12153)), False)
sketch7.addGeometry(Part.ArcOfCircle(Part.Circle(Vector(-13.228444, 67.292085, 0), Vector(0, 0, 1), 2.54), math.radians(-166.755918), math.radians(-78.87847)), False)
sketch7.addConstraint(Sketcher.Constraint("Tangent", 0, 2, 1, 2))
sketch7.addConstraint(Sketcher.Constraint("Tangent", 1, 1, 2, 2))
sketch7.addConstraint(Sketcher.Constraint("Tangent", 2, 1, 3, 2))
sketch7.addConstraint(Sketcher.Constraint("Tangent", 3, 1, 4, 1))
sketch7.addConstraint(Sketcher.Constraint("Tangent", 4, 2, 5, 2))
sketch7.addConstraint(Sketcher.Constraint("Tangent", 5, 1, 6, 1))
sketch7.addConstraint(Sketcher.Constraint("Tangent", 6, 2, 7, 2))
sketch7.addConstraint(Sketcher.Constraint("Tangent", 7, 1, 0, 1))
sketch7.addConstraint(Sketcher.Constraint("Coincident", 2, 3, -1, 1))
sketch7.addConstraint(Sketcher.Constraint("Coincident", 6, 3, -1, 1))
sketch7.addConstraint(Sketcher.Constraint("Equal", 1, 3))
sketch7.addConstraint(Sketcher.Constraint("Equal", 3, 5))
sketch7.addConstraint(Sketcher.Constraint("Equal", 5, 7))
sketch7.addConstraint(Sketcher.Constraint("Equal", 0, 4))
sketch7.addConstraint(Sketcher.Constraint("Radius", 1, Q("0.1 in")))
sketch7.addConstraint(Sketcher.Constraint("Radius", 6, Q("2.6 in")))
sketch7.addConstraint(Sketcher.Constraint("Radius", 2, Q("2.951 in")))
sketch7.addConstraint(Sketcher.Constraint("DistanceY", -1, 1, 1, 3, Q("71.027902 mm")))
sketch7.addConstraint(Sketcher.Constraint("DistanceX", -1, 1, 3, 1, Q("33.055102 mm")))
sketch7.addConstraint(Sketcher.Constraint("DistanceX", 6, 2, -1, 1, Q("12.738502 mm")))
sketch7.setExpression("Constraints[14]", "Params.sketch7_radius")
sketch7.setExpression("Constraints[15]", "Params.sketch7_radius2")
sketch7.setExpression("Constraints[16]", "Params.sketch7_radius3")
pocket4 = body.newObject("PartDesign::Pocket", "Pocket003")
pocket4.Profile = sketch7
pocket4.Type = "UpToFirst"
pocket4.Reversed = True

doc.recompute()
